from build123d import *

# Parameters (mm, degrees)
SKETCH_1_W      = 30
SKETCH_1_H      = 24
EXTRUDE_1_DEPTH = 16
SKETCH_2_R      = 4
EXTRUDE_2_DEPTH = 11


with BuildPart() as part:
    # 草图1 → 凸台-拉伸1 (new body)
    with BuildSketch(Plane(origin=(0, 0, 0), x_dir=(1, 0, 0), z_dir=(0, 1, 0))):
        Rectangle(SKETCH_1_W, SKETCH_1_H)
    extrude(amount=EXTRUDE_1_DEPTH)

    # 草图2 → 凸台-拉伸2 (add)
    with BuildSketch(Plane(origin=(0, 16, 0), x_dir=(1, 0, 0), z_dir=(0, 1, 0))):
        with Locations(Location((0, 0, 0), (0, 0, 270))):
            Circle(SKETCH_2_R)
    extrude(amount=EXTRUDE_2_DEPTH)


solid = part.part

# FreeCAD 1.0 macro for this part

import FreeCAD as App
import Part
import Sketcher
from FreeCAD import Vector

doc = App.newDocument("Part")
body = doc.addObject("PartDesign::Body", "Body")

# Sketch on XZ plane
sketch1 = body.newObject("Sketcher::SketchObject", "Sketch")
sketch1.AttachmentSupport = (doc.getObject("XZ_Plane"), [""])
sketch1.MapMode = "FlatFace"
sketch1.addGeometry([
    Part.LineSegment(Vector(-15, -12, 0), Vector(-15, 12, 0)),
    Part.LineSegment(Vector(-15, 12, 0), Vector(15, 12, 0)),
    Part.LineSegment(Vector(15, 12, 0), Vector(15, -12, 0)),
    Part.LineSegment(Vector(15, -12, 0), Vector(-15, -12, 0)),
], False)
sketch1.addConstraint([
    Sketcher.Constraint("Coincident", 0, 2, 1, 1),
    Sketcher.Constraint("Coincident", 1, 2, 2, 1),
    Sketcher.Constraint("Coincident", 2, 2, 3, 1),
    Sketcher.Constraint("Coincident", 3, 2, 0, 1),
    Sketcher.Constraint("Vertical", 0),
    Sketcher.Constraint("Horizontal", 1),
    Sketcher.Constraint("Vertical", 2),
    Sketcher.Constraint("Horizontal", 3),
    Sketcher.Constraint("Symmetric", 0, 2, 2, 2, -1, 1),
    Sketcher.Constraint("DistanceX", 1, 1, 1, 2, 30.0),
    Sketcher.Constraint("DistanceY", 0, 1, 0, 2, 24.0),
])
pad1 = body.newObject("PartDesign::Pad", "Pad")
pad1.Profile = sketch1
pad1.Length = 16
pad1.Reversed = True

# Sketch on XZ plane
sketch2 = body.newObject("Sketcher::SketchObject", "Sketch001")
sketch2.AttachmentSupport = (doc.getObject("XZ_Plane"), [""])
sketch2.MapMode = "FlatFace"
sketch2.AttachmentOffset = App.Placement(Vector(0, 0, -16), App.Rotation())
sketch2.addGeometry(Part.Circle(Vector(0, 0, 0), Vector(0, 0, 1), 4), False)
sketch2.addConstraint([
    Sketcher.Constraint("Coincident", 0, 3, -1, 1),
    Sketcher.Constraint("Diameter", 0, 8.0),
])
pad2 = body.newObject("PartDesign::Pad", "Pad001")
pad2.Profile = sketch2
pad2.Length = 11
pad2.Reversed = True

doc.recompute()
